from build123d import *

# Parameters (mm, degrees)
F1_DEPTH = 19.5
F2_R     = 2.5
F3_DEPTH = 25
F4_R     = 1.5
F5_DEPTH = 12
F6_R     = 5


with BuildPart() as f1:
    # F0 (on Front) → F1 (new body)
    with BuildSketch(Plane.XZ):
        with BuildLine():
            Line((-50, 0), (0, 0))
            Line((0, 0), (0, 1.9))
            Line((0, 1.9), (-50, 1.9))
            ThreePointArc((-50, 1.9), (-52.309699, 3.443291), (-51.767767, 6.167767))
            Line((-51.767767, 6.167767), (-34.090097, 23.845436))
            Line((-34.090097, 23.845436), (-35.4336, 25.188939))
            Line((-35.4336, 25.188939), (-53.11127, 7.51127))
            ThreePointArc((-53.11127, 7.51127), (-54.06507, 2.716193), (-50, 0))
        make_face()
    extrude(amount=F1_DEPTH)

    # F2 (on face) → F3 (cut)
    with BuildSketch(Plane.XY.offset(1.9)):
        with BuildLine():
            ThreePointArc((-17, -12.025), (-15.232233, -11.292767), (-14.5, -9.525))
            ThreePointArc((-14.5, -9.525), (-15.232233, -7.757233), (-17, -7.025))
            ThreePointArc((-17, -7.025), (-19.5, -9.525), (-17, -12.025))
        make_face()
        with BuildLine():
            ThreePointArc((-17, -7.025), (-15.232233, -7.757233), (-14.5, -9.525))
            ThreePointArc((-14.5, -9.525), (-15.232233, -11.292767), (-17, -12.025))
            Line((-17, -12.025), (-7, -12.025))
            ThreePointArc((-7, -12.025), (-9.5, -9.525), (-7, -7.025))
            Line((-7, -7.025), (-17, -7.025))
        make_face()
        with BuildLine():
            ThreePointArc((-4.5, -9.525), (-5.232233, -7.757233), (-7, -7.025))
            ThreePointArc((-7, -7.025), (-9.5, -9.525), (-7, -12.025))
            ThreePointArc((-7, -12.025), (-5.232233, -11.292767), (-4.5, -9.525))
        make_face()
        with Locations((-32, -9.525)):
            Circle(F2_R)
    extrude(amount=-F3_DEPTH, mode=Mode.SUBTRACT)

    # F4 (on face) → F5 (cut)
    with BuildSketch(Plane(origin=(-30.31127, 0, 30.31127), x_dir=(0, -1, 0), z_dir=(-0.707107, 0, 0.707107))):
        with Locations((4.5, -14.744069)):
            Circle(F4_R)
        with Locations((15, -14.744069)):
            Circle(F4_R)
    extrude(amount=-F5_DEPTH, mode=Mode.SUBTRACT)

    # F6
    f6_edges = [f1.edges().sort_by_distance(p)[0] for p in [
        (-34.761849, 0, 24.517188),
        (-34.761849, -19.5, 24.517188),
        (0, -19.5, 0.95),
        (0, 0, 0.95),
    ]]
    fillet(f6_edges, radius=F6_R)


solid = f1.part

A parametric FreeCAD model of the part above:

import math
import FreeCAD as App
import Part
import Sketcher
Q = App.Units.Quantity


def edges_at(feature, points):
    """Names of the edges that pass closest to the given points."""
    edges = feature.Shape.Edges
    near = lambda p: min(range(len(edges)), key=lambda i: edges[i].distToShape(Part.Vertex(*p))[0])
    return sorted({f"Edge{near(p) + 1}" for p in points})

doc = App.newDocument("Part")
body = doc.addObject("PartDesign::Body", "Body")

sketch1 = body.newObject("Sketcher::SketchObject", "Sketch")
sketch1.AttachmentSupport = (doc.getObject("XZ_Plane"), [""])
sketch1.MapMode = "FlatFace"
sketch1.addGeometry([
    Part.LineSegment(App.Vector(-50, 0, 0), App.Vector(0, 0, 0)),
    Part.LineSegment(App.Vector(0, 0, 0), App.Vector(0, 1.9, 0)),
    Part.LineSegment(App.Vector(0, 1.9, 0), App.Vector(-50, 1.9, 0)),
    Part.ArcOfCircle(Part.Circle(App.Vector(-50, 4.4, 0), App.Vector(0, 0, 1), 2.5), math.radians(135), math.radians(270)),
    Part.LineSegment(App.Vector(-51.8, 6.2, 0), App.Vector(-34.1, 23.8, 0)),
    Part.LineSegment(App.Vector(-34.1, 23.8, 0), App.Vector(-35.4, 25.2, 0)),
    Part.LineSegment(App.Vector(-35.4, 25.2, 0), App.Vector(-53.1, 7.5, 0)),
    Part.ArcOfCircle(Part.Circle(App.Vector(-50, 4.4, 0), App.Vector(0, 0, 1), 4.4), math.radians(135), math.radians(270)),
], False)
sketch1.addConstraint([
    Sketcher.Constraint("Coincident", 0, 2, 1, 1),
    Sketcher.Constraint("Coincident", 1, 2, 2, 1),
    Sketcher.Constraint("Tangent", 2, 2, 3, 2),
    Sketcher.Constraint("Tangent", 3, 1, 4, 1),
    Sketcher.Constraint("Coincident", 4, 2, 5, 1),
    Sketcher.Constraint("Coincident", 5, 2, 6, 1),
    Sketcher.Constraint("Tangent", 6, 2, 7, 1),
    Sketcher.Constraint("Tangent", 7, 2, 0, 1),
    Sketcher.Constraint("Horizontal", 0),
    Sketcher.Constraint("Vertical", 1),
    Sketcher.Constraint("Horizontal", 2),
    Sketcher.Constraint("Coincident", 0, 2, -1, 1),
    Sketcher.Constraint("Coincident", 7, 3, 3, 3),
    Sketcher.Constraint("Perpendicular", 4, 5),
    Sketcher.Constraint("Perpendicular", 5, 6),
    Sketcher.Constraint("Radius", 3, Q("2.5 mm")),
    Sketcher.Constraint("Radius", 7, Q("4.4 mm")),
    Sketcher.Constraint("DistanceX", 0, 1, 0, 2, Q("50 mm")),
    Sketcher.Constraint("Angle", 4, Q("44.999998 deg")),
    Sketcher.Constraint("Distance", 4, Q("25 mm")),
])
pad1 = body.newObject("PartDesign::Pad", "Pad")
pad1.Profile = sketch1
pad1.Length = 19.5

sketch2 = body.newObject("Sketcher::SketchObject", "Sketch001")
sketch2.AttachmentSupport = (doc.getObject("XY_Plane"), [""])
sketch2.MapMode = "FlatFace"
sketch2.AttachmentOffset = App.Placement(App.Vector(0, 0, 1.9), App.Rotation())
sketch2.addGeometry([
    Part.ArcOfCircle(Part.Circle(App.Vector(-17, -9.5, 0), App.Vector(0, 0, 1), 2.5), math.radians(90), math.radians(270)),
    Part.LineSegment(App.Vector(-17, -12, 0), App.Vector(-7, -12, 0)),
    Part.ArcOfCircle(Part.Circle(App.Vector(-7, -9.5, 0), App.Vector(0, 0, 1), 2.5), math.radians(-90), math.radians(0)),
    Part.ArcOfCircle(Part.Circle(App.Vector(-7, -9.5, 0), App.Vector(0, 0, 1), 2.5), math.radians(0), math.radians(90)),
    Part.LineSegment(App.Vector(-7, -7, 0), App.Vector(-17, -7, 0)),
    Part.Circle(App.Vector(-32, -9.5, 0), App.Vector(0, 0, 1), 2.5),
], False)
sketch2.addConstraint([
    Sketcher.Constraint("Tangent", 0, 2, 1, 1),
    Sketcher.Constraint("Tangent", 1, 2, 2, 1),
    Sketcher.Constraint("Tangent", 2, 2, 3, 1),
    Sketcher.Constraint("Tangent", 3, 2, 4, 1),
    Sketcher.Constraint("Tangent", 4, 2, 0, 1),
    Sketcher.Constraint("Horizontal", 1),
    Sketcher.Constraint("Horizontal", 4),
    Sketcher.Constraint("Equal", 0, 2),
    Sketcher.Constraint("Equal", 3, 5),
    Sketcher.Constraint("Horizontal", 3, 3, 5, 3),
    Sketcher.Constraint("Horizontal", 5, 3, 2, 2),
    Sketcher.Constraint("Diameter", 5, Q("5 mm")),
    Sketcher.Constraint("DistanceX", 1, 1, 1, 2, Q("10 mm")),
    Sketcher.Constraint("DistanceX", 0, 3, -1, 1, Q("17 mm")),
    Sketcher.Constraint("DistanceX", 5, 3, -1, 1, Q("32 mm")),
    Sketcher.Constraint("DistanceY", 0, 3, -1, 1, Q("9.525 mm")),
])
pocket1 = body.newObject("PartDesign::Pocket", "Pocket")
pocket1.Profile = sketch2
pocket1.Length = 25

sketch3 = body.newObject("Sketcher::SketchObject", "Sketch002")
sketch3.Placement = App.Placement(App.Vector(-30.31127, 0, 30.31127), App.Rotation(App.Vector(0, -1, 0), App.Vector(0.707106781, 0, 0.707106781), App.Vector(-0.707106781, 0, 0.707106781), "ZXY"))
sketch3.addGeometry([
    Part.Circle(App.Vector(4.5, -14.7, 0), App.Vector(0, 0, 1), 1.5),
    Part.Circle(App.Vector(15, -14.7, 0), App.Vector(0, 0, 1), 1.5),
], False)
sketch3.addConstraint([
    Sketcher.Constraint("Equal", 0, 1),
    Sketcher.Constraint("Horizontal", 0, 3, 1, 3),
    Sketcher.Constraint("Diameter", 0, Q("3 mm")),
    Sketcher.Constraint("DistanceX", -1, 1, 1, 3, Q("15 mm")),
    Sketcher.Constraint("DistanceX", -1, 1, 0, 3, Q("4.5 mm")),
    Sketcher.Constraint("DistanceY", 0, 3, -1, 1, Q("14.744069 mm")),
])
pocket2 = body.newObject("PartDesign::Pocket", "Pocket001")
pocket2.Profile = sketch3
pocket2.Length = 12
doc.recompute()

fillet = body.newObject("PartDesign::Fillet", "Fillet")
fillet.Base = (pocket2, edges_at(pocket2, [
    (-34.762, 0, 24.517),
    (-34.762, -19.5, 24.517),
    (0, -19.5, 0.95),
    (0, 0, 0.95),
]))
fillet.Radius = 5

doc.recompute()
